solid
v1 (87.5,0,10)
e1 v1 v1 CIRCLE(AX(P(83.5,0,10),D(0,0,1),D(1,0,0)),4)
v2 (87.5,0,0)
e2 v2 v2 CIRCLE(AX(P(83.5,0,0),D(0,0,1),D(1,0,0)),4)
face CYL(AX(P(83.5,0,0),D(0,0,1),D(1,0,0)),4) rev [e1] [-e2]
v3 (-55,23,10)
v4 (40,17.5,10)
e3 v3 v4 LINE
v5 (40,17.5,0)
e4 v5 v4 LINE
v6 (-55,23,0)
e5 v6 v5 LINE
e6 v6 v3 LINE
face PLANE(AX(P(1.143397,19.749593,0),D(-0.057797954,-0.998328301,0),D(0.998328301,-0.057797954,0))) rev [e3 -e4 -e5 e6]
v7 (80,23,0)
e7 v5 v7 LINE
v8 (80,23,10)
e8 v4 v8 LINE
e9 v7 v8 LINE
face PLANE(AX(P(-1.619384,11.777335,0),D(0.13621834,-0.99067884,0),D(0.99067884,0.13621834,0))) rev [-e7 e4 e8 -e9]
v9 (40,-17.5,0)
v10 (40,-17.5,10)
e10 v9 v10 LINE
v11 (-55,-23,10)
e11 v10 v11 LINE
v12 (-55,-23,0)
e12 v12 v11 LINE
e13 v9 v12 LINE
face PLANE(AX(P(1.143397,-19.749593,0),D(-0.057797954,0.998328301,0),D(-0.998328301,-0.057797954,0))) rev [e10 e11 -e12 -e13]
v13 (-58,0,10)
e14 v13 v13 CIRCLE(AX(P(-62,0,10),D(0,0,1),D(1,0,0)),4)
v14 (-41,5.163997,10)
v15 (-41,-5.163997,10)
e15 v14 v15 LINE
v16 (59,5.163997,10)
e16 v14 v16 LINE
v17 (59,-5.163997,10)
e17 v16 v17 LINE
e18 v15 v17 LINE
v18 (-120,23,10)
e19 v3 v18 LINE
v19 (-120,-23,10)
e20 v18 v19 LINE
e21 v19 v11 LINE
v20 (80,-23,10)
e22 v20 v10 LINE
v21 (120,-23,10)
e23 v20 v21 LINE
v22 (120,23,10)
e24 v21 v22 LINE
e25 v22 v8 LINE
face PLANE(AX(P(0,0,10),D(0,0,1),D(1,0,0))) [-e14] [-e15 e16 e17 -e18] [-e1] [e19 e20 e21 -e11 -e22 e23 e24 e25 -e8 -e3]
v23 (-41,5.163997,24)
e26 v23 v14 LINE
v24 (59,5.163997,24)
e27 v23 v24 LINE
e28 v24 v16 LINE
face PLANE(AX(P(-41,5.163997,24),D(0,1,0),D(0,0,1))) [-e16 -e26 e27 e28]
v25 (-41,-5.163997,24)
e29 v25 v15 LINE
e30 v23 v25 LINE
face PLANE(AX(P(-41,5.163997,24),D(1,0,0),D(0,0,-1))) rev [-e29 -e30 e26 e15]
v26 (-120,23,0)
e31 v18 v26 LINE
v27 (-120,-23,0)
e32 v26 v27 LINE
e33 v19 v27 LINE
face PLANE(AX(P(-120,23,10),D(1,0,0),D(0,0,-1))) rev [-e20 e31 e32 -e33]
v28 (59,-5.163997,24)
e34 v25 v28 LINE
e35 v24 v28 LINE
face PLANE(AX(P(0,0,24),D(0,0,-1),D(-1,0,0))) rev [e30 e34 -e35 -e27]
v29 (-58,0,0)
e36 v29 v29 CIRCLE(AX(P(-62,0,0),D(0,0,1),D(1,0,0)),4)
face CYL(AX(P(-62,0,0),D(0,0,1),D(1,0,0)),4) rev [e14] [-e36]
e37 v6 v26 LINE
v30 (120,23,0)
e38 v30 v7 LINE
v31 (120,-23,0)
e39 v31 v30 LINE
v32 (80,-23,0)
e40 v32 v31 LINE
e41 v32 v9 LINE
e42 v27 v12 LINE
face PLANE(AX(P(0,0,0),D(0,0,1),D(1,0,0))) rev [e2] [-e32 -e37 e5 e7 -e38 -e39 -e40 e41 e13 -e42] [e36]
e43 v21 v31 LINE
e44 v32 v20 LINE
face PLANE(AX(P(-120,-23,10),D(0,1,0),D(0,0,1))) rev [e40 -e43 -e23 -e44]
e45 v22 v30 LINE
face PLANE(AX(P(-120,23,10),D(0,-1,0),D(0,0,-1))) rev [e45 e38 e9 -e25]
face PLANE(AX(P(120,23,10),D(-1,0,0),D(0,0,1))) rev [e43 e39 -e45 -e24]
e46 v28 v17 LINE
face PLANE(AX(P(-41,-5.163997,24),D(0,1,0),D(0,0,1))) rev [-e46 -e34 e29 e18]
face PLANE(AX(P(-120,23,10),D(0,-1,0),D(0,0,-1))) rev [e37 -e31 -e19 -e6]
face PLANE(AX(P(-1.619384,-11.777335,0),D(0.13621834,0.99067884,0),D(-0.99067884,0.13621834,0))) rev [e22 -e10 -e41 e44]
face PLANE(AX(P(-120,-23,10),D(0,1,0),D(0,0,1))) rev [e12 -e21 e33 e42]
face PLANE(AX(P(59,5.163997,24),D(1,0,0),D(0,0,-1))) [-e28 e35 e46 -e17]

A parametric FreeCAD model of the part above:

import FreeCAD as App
import Part
import Sketcher
from FreeCAD import Vector
Q = App.Units.Quantity


def add_polygon(sketch, points):
    """Adds a closed chain of lines whose ends are joined by coincident constraints."""
    first, n = sketch.GeometryCount, len(points)
    for a, b in zip(points, points[1:] + points[:1]):
        sketch.addGeometry(Part.LineSegment(App.Vector(*a, 0), App.Vector(*b, 0)), False)
    for i in range(n):
        sketch.addConstraint(Sketcher.Constraint("Coincident", first + i, 2, first + (i + 1) % n, 1))

doc = App.newDocument("Part")
body = doc.addObject("PartDesign::Body", "Body")

# Sketch on XY plane
sketch1 = body.newObject("Sketcher::SketchObject", "Sketch")
sketch1.AttachmentSupport = (doc.getObject("XY_Plane"), [""])
sketch1.MapMode = "FlatFace"
add_polygon(sketch1, [(-120, 23), (-120, -23), (120, -23), (120, 23)])  # lines 0-3
sketch1.addConstraint(Sketcher.Constraint("Vertical", 0))
sketch1.addConstraint(Sketcher.Constraint("Horizontal", 1))
sketch1.addConstraint(Sketcher.Constraint("Vertical", 2))
sketch1.addConstraint(Sketcher.Constraint("Horizontal", 3))
sketch1.addConstraint(Sketcher.Constraint("Symmetric", 0, 2, 2, 2, -1, 1))
sketch1.addConstraint(Sketcher.Constraint("DistanceX", 1, 1, 1, 2, Q("240 mm")))
sketch1.addConstraint(Sketcher.Constraint("DistanceY", 0, 2, 0, 1, Q("46 mm")))
pad1 = body.newObject("PartDesign::Pad", "Pad")
pad1.Profile = sketch1
pad1.Length = 10

# Sketch on XY plane
sketch2 = body.newObject("Sketcher::SketchObject", "Sketch001")
sketch2.AttachmentSupport = (doc.getObject("XY_Plane"), [""])
sketch2.MapMode = "FlatFace"
sketch2.AttachmentOffset = App.Placement(Vector(0, 0, 10), App.Rotation())
add_polygon(sketch2, [(-55, 23), (-20, 21), (40, 18), (80, 23)])  # lines 0-3
add_polygon(sketch2, [(80, -23), (40, -18), (-20, -21), (-55, -23)])  # lines 4-7
sketch2.addConstraint(Sketcher.Constraint("Horizontal", 3))
sketch2.addConstraint(Sketcher.Constraint("Horizontal", 7))
sketch2.addConstraint(Sketcher.Constraint("Symmetric", 1, 2, 4, 2, -1))
sketch2.addConstraint(Sketcher.Constraint("Symmetric", 0, 2, 5, 2, -1))
sketch2.addConstraint(Sketcher.Constraint("Symmetric", 3, 2, 6, 2, -1))
sketch2.addConstraint(Sketcher.Constraint("Parallel", 0, 1))
sketch2.addConstraint(Sketcher.Constraint("Vertical", 2, 2, 7, 2))
sketch2.addConstraint(Sketcher.Constraint("DistanceX", 3, 2, 3, 1, Q("135 mm")))
sketch2.addConstraint(Sketcher.Constraint("DistanceY", -1, 1, 0, 2, Q("21 mm")))
sketch2.addConstraint(Sketcher.Constraint("DistanceX", -1, 1, 1, 2, Q("40 mm")))
sketch2.addConstraint(Sketcher.Constraint("DistanceX", -1, 1, 2, 2, Q("80 mm")))
sketch2.addConstraint(Sketcher.Constraint("DistanceY", -1, 1, 2, 2, Q("23 mm")))
sketch2.addConstraint(Sketcher.Constraint("DistanceY", 4, 2, 1, 2, Q("35 mm")))
pocket1 = body.newObject("PartDesign::Pocket", "Pocket")
pocket1.Profile = sketch2
pocket1.Length = 10

# Sketch on XY plane
sketch3 = body.newObject("Sketcher::SketchObject", "Sketch002")
sketch3.AttachmentSupport = (doc.getObject("XY_Plane"), [""])
sketch3.MapMode = "FlatFace"
sketch3.AttachmentOffset = App.Placement(Vector(0, 0, 10), App.Rotation())
add_polygon(sketch3, [(-45, 5), (-45, -5), (22, -5), (22, 5)])  # lines 0-3
sketch3.addConstraint(Sketcher.Constraint("Vertical", 0))
sketch3.addConstraint(Sketcher.Constraint("Horizontal", 1))
sketch3.addConstraint(Sketcher.Constraint("Vertical", 2))
sketch3.addConstraint(Sketcher.Constraint("Horizontal", 3))
sketch3.addConstraint(Sketcher.Constraint("DistanceY", 0, 2, 0, 1, Q("10 mm")))
sketch3.addConstraint(Sketcher.Constraint("DistanceX", 0, 2, -1, 1, Q("45 mm")))
sketch3.addConstraint(Sketcher.Constraint("DistanceY", 0, 2, -1, 1, Q("5 mm")))
sketch3.addConstraint(Sketcher.Constraint("DistanceX", 1, 1, 1, 2, Q("66.746798 mm")))
pad2 = body.newObject("PartDesign::Pad", "Pad001")
pad2.Profile = sketch3
pad2.Length = 14

# Sketch on XY plane
sketch4 = body.newObject("Sketcher::SketchObject", "Sketch003")
sketch4.AttachmentSupport = (doc.getObject("XY_Plane"), [""])
sketch4.MapMode = "FlatFace"
sketch4.AttachmentOffset = App.Placement(Vector(0, 0, 10), App.Rotation())
sketch4.addGeometry(Part.Circle(Vector(84, 0, 0), Vector(0, 0, 1), 12), False)
sketch4.addConstraint(Sketcher.Constraint("PointOnObject", 0, 3, -1))
sketch4.addConstraint(Sketcher.Constraint("Diameter", 0, Q("25 mm")))
sketch4.addConstraint(Sketcher.Constraint("DistanceX", -1, 1, 0, 3, Q("83.5 mm")))
pocket2 = body.newObject("PartDesign::Pocket", "Pocket001")
pocket2.Profile = sketch4
pocket2.Length = 14

# Sketch on XY plane
sketch5 = body.newObject("Sketcher::SketchObject", "Sketch004")
sketch5.AttachmentSupport = (doc.getObject("XY_Plane"), [""])
sketch5.MapMode = "FlatFace"
sketch5.AttachmentOffset = App.Placement(Vector(0, 0, 10), App.Rotation())
sketch5.addGeometry(Part.Circle(Vector(-62, 0, 0), Vector(0, 0, 1), 4), False)
sketch5.addConstraint(Sketcher.Constraint("PointOnObject", 0, 3, -1))
sketch5.addConstraint(Sketcher.Constraint("Diameter", 0, Q("8 mm")))
sketch5.addConstraint(Sketcher.Constraint("DistanceX", 0, 3, -1, 1, Q("62 mm")))
pocket3 = body.newObject("PartDesign::Pocket", "Pocket002")
pocket3.Profile = sketch5
pocket3.Length = 10

# Sketch on XZ plane
sketch6 = body.newObject("Sketcher::SketchObject", "Sketch005")
sketch6.AttachmentSupport = (doc.getObject("XZ_Plane"), [""])
sketch6.MapMode = "FlatFace"
sketch6.AttachmentOffset = App.Placement(Vector(0, 0, 5), App.Rotation())
add_polygon(sketch6, [(-45, 24), (-45, 10), (22, 10), (22, 24)])  # lines 0-3
sketch6.addConstraint(Sketcher.Constraint("Vertical", 0))
sketch6.addConstraint(Sketcher.Constraint("Horizontal", 1))
sketch6.addConstraint(Sketcher.Constraint("Vertical", 2))
sketch6.addConstraint(Sketcher.Constraint("Horizontal", 3))
sketch6.addConstraint(Sketcher.Constraint("DistanceY", 0, 2, 0, 1, Q("14 mm")))
sketch6.addConstraint(Sketcher.Constraint("DistanceX", 0, 2, -1, 1, Q("45 mm")))
sketch6.addConstraint(Sketcher.Constraint("DistanceY", -1, 1, 0, 2, Q("10 mm")))
sketch6.addConstraint(Sketcher.Constraint("DistanceX", 1, 1, 1, 2, Q("66.746798 mm")))
pocket4 = body.newObject("PartDesign::Pocket", "Pocket003")
pocket4.Profile = sketch6
pocket4.Length = 10

# Sketch on XY plane
sketch7 = body.newObject("Sketcher::SketchObject", "Sketch006")
sketch7.AttachmentSupport = (doc.getObject("XY_Plane"), [""])
sketch7.MapMode = "FlatFace"
sketch7.AttachmentOffset = App.Placement(Vector(0, 0, 10), App.Rotation())
add_polygon(sketch7, [(-41, 5), (-41, -5), (59, -5), (59, 5)])  # lines 0-3
sketch7.addConstraint(Sketcher.Constraint("Vertical", 0))
sketch7.addConstraint(Sketcher.Constraint("Horizontal", 1))
sketch7.addConstraint(Sketcher.Constraint("Vertical", 2))
sketch7.addConstraint(Sketcher.Constraint("Horizontal", 3))
sketch7.addConstraint(Sketcher.Constraint("DistanceX", 1, 1, 1, 2, Q("100 mm")))
sketch7.addConstraint(Sketcher.Constraint("DistanceX", 0, 2, -1, 1, Q("41 mm")))
sketch7.addConstraint(Sketcher.Constraint("DistanceY", 0, 2, 0, 1, Q("10.327994 mm")))
sketch7.addConstraint(Sketcher.Constraint("DistanceY", 0, 2, -1, 1, Q("5.163997 mm")))
pad3 = body.newObject("PartDesign::Pad", "Pad002")
pad3.Profile = sketch7
pad3.Length = 14

# Sketch on XY plane
sketch8 = body.newObject("Sketcher::SketchObject", "Sketch007")
sketch8.AttachmentSupport = (doc.getObject("XY_Plane"), [""])
sketch8.MapMode = "FlatFace"
sketch8.AttachmentOffset = App.Placement(Vector(0, 0, 10), App.Rotation())
sketch8.addGeometry(Part.Circle(Vector(83.5, 0, 0), Vector(0, 0, 1), 12.5), False)
sketch8.addGeometry(Part.Circle(Vector(83.5, 0, 0), Vector(0, 0, 1), 4), False)
sketch8.addConstraint(Sketcher.Constraint("Coincident", 1, 3, 0, 3))
sketch8.addConstraint(Sketcher.Constraint("PointOnObject", 0, 3, -1))
sketch8.addConstraint(Sketcher.Constraint("Diameter", 0, Q("25 mm")))
sketch8.addConstraint(Sketcher.Constraint("Diameter", 1, Q("8 mm")))
sketch8.addConstraint(Sketcher.Constraint("DistanceX", -1, 1, 0, 3, Q("83.5 mm")))
pad4 = body.newObject("PartDesign::Pad", "Pad003")
pad4.Profile = sketch8
pad4.Length = 10
pad4.Reversed = True

doc.recompute()
